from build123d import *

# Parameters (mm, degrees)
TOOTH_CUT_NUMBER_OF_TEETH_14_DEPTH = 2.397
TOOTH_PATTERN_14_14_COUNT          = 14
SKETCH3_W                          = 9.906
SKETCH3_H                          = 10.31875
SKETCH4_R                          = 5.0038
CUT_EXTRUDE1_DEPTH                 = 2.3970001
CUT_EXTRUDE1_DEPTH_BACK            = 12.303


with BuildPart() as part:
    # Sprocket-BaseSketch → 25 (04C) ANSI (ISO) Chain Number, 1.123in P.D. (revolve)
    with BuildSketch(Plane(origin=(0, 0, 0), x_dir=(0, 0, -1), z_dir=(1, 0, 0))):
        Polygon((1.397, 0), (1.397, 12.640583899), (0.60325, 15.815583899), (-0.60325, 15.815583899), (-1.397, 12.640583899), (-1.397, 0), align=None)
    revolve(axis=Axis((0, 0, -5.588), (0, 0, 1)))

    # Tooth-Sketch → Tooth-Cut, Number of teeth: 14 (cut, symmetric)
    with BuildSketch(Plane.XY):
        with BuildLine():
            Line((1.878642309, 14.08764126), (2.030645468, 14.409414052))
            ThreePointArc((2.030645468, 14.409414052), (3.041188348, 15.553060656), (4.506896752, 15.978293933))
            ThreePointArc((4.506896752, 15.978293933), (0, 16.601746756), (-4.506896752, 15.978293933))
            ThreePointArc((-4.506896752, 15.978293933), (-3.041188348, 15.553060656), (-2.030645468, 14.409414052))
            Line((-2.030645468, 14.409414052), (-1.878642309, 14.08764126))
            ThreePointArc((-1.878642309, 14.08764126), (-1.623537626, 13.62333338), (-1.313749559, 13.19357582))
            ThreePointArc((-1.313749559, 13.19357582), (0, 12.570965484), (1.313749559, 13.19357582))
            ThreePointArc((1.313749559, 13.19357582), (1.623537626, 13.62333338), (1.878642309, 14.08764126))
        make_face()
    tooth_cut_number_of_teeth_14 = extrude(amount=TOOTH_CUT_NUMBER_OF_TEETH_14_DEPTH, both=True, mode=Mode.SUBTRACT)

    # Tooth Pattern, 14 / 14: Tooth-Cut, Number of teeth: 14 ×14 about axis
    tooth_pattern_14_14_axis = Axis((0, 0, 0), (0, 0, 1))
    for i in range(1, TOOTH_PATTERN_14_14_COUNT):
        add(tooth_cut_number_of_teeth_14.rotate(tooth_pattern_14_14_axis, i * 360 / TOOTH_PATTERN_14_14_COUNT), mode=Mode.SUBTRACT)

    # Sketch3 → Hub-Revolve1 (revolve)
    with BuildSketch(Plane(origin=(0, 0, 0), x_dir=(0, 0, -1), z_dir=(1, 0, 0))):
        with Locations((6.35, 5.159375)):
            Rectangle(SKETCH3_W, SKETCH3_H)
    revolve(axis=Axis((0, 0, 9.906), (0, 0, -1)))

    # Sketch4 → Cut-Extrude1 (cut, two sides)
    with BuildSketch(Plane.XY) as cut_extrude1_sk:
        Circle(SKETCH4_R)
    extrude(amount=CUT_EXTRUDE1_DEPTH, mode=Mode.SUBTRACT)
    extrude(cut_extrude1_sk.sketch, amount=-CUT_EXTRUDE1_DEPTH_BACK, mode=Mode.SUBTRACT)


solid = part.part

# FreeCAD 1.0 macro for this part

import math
import FreeCAD as App
import Part
import Sketcher
Q = App.Units.Quantity

doc = App.newDocument("Part")
body = doc.addObject("PartDesign::Body", "Body")

# Sketch on YZ plane
sketch1 = body.newObject("Sketcher::SketchObject", "Sketch")
sketch1.AttachmentSupport = (doc.getObject("YZ_Plane"), [""])
sketch1.MapMode = "FlatFace"
sketch1.addGeometry([
    Part.LineSegment(App.Vector(0, -1.4, 0), App.Vector(12.6, -1.4, 0)),  # 0
    Part.LineSegment(App.Vector(12.6, -1.4, 0), App.Vector(15.8, -0.6, 0)),  # 1
    Part.LineSegment(App.Vector(15.8, -0.6, 0), App.Vector(15.8, 0.6, 0)),  # 2
    Part.LineSegment(App.Vector(15.8, 0.6, 0), App.Vector(12.6, 1.4, 0)),  # 3
    Part.LineSegment(App.Vector(12.6, 1.4, 0), App.Vector(0, 1.4, 0)),  # 4
    Part.LineSegment(App.Vector(0, 1.4, 0), App.Vector(0, -1.4, 0)),  # 5
], False)
sketch1.addConstraint([
    Sketcher.Constraint("Coincident", 0, 2, 1, 1),
    Sketcher.Constraint("Coincident", 1, 2, 2, 1),
    Sketcher.Constraint("Coincident", 2, 2, 3, 1),
    Sketcher.Constraint("Coincident", 3, 2, 4, 1),
    Sketcher.Constraint("Coincident", 4, 2, 5, 1),
    Sketcher.Constraint("Coincident", 5, 2, 0, 1),
    Sketcher.Constraint("Horizontal", 0),
    Sketcher.Constraint("Vertical", 2),
    Sketcher.Constraint("Horizontal", 4),
    Sketcher.Constraint("Vertical", 5),
    Sketcher.Constraint("Symmetric", 4, 2, 5, 2, -1, 1),
    Sketcher.Constraint("Vertical", 0, 2, 3, 2),
    Sketcher.Constraint("Equal", 1, 3),
    Sketcher.Constraint("DistanceY", 5, 2, 5, 1, Q("0.11 in")),
    Sketcher.Constraint("DistanceY", 2, 1, 2, 2, Q("0.0475 in")),
    Sketcher.Constraint("DistanceX", 0, 2, 1, 2, Q("0.125 in")),
    Sketcher.Constraint("DistanceX", 0, 1, 0, 2, Q("12.640584 mm")),
])
revolution = body.newObject("PartDesign::Revolution", "Revolution")
revolution.Profile = sketch1
revolution.ReferenceAxis = (sketch1, ["V_Axis"])
revolution.Angle = 360

# Sketch on XY plane
sketch2 = body.newObject("Sketcher::SketchObject", "Sketch001")
sketch2.AttachmentSupport = (doc.getObject("XY_Plane"), [""])
sketch2.MapMode = "FlatFace"
sketch2.addGeometry([
    Part.LineSegment(App.Vector(1.88, 14.09, 0), App.Vector(2.03, 14.41, 0)),  # 0
    Part.ArcOfCircle(Part.Circle(App.Vector(4.51, 13.24, 0), App.Vector(0, 0, 1), 2.74), math.radians(90), math.radians(155)),  # 1
    Part.ArcOfCircle(Part.Circle(App.Vector(0, 0, 0), App.Vector(0, 0, 1), 16.6), math.radians(74), math.radians(106)),  # 2
    Part.ArcOfCircle(Part.Circle(App.Vector(-4.51, 13.24, 0), App.Vector(0, 0, 1), 2.74), math.radians(25), math.radians(90)),  # 3
    Part.LineSegment(App.Vector(-2.03, 14.41, 0), App.Vector(-1.88, 14.09, 0)),  # 4
    Part.ArcOfCircle(Part.Circle(App.Vector(2.04, 15.94, 0), App.Vector(0, 0, 1), 4.34), math.radians(-154.71), math.radians(-140.71)),  # 5
    Part.ArcOfCircle(Part.Circle(App.Vector(0, 14.27, 0), App.Vector(0, 0, 1), 1.7), math.radians(-141), math.radians(-39)),  # 6
    Part.ArcOfCircle(Part.Circle(App.Vector(-2.04, 15.94, 0), App.Vector(0, 0, 1), 4.34), math.radians(-39.29), math.radians(-25.29)),  # 7
], False)
sketch2.addConstraint([
    Sketcher.Constraint("Tangent", 0, 2, 1, 2),
    Sketcher.Constraint("Coincident", 1, 1, 2, 1),
    Sketcher.Constraint("Coincident", 2, 2, 3, 2),
    Sketcher.Constraint("Tangent", 3, 1, 4, 1),
    Sketcher.Constraint("Tangent", 4, 2, 5, 1),
    Sketcher.Constraint("Tangent", 5, 2, 6, 1),
    Sketcher.Constraint("Tangent", 6, 2, 7, 1),
    Sketcher.Constraint("Tangent", 7, 2, 0, 1),
    Sketcher.Constraint("Coincident", 2, 3, -1, 1),
    Sketcher.Constraint("Equal", 1, 3),
    Sketcher.Constraint("Equal", 5, 7),
    Sketcher.Constraint("Symmetric", 1, 3, 3, 3, -2),
    Sketcher.Constraint("Symmetric", 5, 3, 7, 3, -2),
    Sketcher.Constraint("Vertical", 3, 3, 2, 2),
    Sketcher.Constraint("Radius", 1, Q("2.738643 mm")),
    Sketcher.Constraint("Radius", 2, Q("16.601747 mm")),
    Sketcher.Constraint("Radius", 5, Q("4.338955 mm")),
    Sketcher.Constraint("Radius", 6, Q("1.697355 mm")),
    Sketcher.Constraint("DistanceY", 1, 3, 5, 3, Q("2.701299 mm")),
    Sketcher.Constraint("DistanceX", 5, 2, 6, 2, Q("2.627499 mm")),
    Sketcher.Constraint("Distance", 0, Q("0.355869 mm")),
])
pocket1 = body.newObject("PartDesign::Pocket", "Pocket")
pocket1.Profile = sketch2
pocket1.Length = 4.794
pocket1.Midplane = True
doc.recompute()

polarpattern = body.newObject("PartDesign::PolarPattern", "PolarPattern")
polarpattern.Originals = [pocket1]
polarpattern.Axis = (doc.getObject("Z_Axis"), [""])
polarpattern.Angle = 360
polarpattern.Occurrences = 14
body.Tip = polarpattern

# Sketch on YZ plane
sketch3 = body.newObject("Sketcher::SketchObject", "Sketch002")
sketch3.AttachmentSupport = (doc.getObject("YZ_Plane"), [""])
sketch3.MapMode = "FlatFace"
sketch3.addGeometry([
    Part.LineSegment(App.Vector(10, -1, 0), App.Vector(0, -1, 0)),
    Part.LineSegment(App.Vector(0, -1, 0), App.Vector(0, -11, 0)),
    Part.LineSegment(App.Vector(0, -11, 0), App.Vector(10, -11, 0)),
    Part.LineSegment(App.Vector(10, -11, 0), App.Vector(10, -1, 0)),
], False)
sketch3.addConstraint([
    Sketcher.Constraint("Coincident", 0, 2, 1, 1),
    Sketcher.Constraint("Coincident", 1, 2, 2, 1),
    Sketcher.Constraint("Coincident", 2, 2, 3, 1),
    Sketcher.Constraint("Coincident", 3, 2, 0, 1),
    Sketcher.Constraint("Horizontal", 0),
    Sketcher.Constraint("Vertical", 1),
    Sketcher.Constraint("Horizontal", 2),
    Sketcher.Constraint("Vertical", 3),
    Sketcher.Constraint("PointOnObject", 0, 2, -2),
    Sketcher.Constraint("DistanceY", 1, 2, 1, 1, Q("0.39 in")),
    Sketcher.Constraint("DistanceX", 0, 2, 0, 1, Q("0.40625 in")),
    Sketcher.Constraint("DistanceY", 0, 2, -1, 1, Q("0.055 in")),
])
revolution2 = body.newObject("PartDesign::Revolution", "Revolution001")
revolution2.Profile = sketch3
revolution2.ReferenceAxis = (sketch3, ["V_Axis"])
revolution2.Angle = 360

# Sketch on XY plane
sketch4 = body.newObject("Sketcher::SketchObject", "Sketch003")
sketch4.AttachmentSupport = (doc.getObject("XY_Plane"), [""])
sketch4.MapMode = "FlatFace"
sketch4.addGeometry(Part.Circle(App.Vector(0, 0, 0), App.Vector(0, 0, 1), 5), False)
sketch4.addConstraint([
    Sketcher.Constraint("Coincident", 0, 3, -1, 1),
    Sketcher.Constraint("Diameter", 0, Q("0.394 in")),
])
pocket2 = body.newObject("PartDesign::Pocket", "Pocket001")
pocket2.Profile = sketch4
pocket2.Type = "ThroughAll"
pocket2.Midplane = True

doc.recompute()
